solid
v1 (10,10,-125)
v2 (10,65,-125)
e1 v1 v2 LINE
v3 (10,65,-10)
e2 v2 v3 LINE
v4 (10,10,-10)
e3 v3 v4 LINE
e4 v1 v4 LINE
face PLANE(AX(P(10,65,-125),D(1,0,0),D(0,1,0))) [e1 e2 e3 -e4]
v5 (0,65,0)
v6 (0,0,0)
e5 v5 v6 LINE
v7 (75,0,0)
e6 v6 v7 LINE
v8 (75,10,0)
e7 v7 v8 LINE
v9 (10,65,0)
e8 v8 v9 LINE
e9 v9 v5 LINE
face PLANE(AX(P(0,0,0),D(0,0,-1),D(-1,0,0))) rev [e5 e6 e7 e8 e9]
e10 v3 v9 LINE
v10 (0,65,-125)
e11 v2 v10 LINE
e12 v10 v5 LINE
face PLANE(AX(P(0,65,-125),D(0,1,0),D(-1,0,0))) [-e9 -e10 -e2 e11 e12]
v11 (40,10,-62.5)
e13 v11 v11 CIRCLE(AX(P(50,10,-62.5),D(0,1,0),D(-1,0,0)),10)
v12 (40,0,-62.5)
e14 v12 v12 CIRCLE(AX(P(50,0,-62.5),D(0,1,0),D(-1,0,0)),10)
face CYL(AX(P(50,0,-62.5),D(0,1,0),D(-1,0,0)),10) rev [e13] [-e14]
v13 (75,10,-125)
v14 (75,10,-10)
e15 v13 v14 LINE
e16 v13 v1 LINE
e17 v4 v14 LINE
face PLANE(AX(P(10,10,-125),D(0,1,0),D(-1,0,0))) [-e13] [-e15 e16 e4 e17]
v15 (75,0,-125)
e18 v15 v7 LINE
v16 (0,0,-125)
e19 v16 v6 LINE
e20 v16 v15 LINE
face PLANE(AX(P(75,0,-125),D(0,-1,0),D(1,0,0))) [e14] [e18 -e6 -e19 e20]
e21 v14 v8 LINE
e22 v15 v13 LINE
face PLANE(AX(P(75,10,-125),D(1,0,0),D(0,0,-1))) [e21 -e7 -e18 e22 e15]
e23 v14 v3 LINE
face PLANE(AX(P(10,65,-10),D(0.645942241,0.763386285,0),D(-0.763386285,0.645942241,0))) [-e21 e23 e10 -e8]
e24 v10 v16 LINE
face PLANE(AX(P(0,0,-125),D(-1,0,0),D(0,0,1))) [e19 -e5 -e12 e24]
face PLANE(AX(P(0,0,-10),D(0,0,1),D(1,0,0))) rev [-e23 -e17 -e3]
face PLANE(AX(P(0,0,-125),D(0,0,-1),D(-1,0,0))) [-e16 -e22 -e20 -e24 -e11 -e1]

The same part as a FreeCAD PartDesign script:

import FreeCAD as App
import Part
import Sketcher
from FreeCAD import Vector

doc = App.newDocument("Part")
body = doc.addObject("PartDesign::Body", "Body")

sketch1 = body.newObject("Sketcher::SketchObject", "Sketch")
sketch1.AttachmentSupport = (doc.getObject("XY_Plane"), [""])
sketch1.MapMode = "FlatFace"
sketch1.addGeometry([
    Part.LineSegment(Vector(0, 65, 0), Vector(0, 0, 0)),
    Part.LineSegment(Vector(0, 0, 0), Vector(75, 0, 0)),
    Part.LineSegment(Vector(75, 0, 0), Vector(75, 10, 0)),
    Part.LineSegment(Vector(75, 10, 0), Vector(10, 10, 0)),
    Part.LineSegment(Vector(10, 10, 0), Vector(10, 65, 0)),
    Part.LineSegment(Vector(10, 65, 0), Vector(0, 65, 0)),
], False)
sketch1.addConstraint([
    Sketcher.Constraint("Coincident", 0, 2, 1, 1),
    Sketcher.Constraint("Coincident", 1, 2, 2, 1),
    Sketcher.Constraint("Coincident", 2, 2, 3, 1),
    Sketcher.Constraint("Coincident", 3, 2, 4, 1),
    Sketcher.Constraint("Coincident", 4, 2, 5, 1),
    Sketcher.Constraint("Coincident", 5, 2, 0, 1),
    Sketcher.Constraint("Vertical", 0),
    Sketcher.Constraint("Horizontal", 1),
    Sketcher.Constraint("Vertical", 2),
    Sketcher.Constraint("Horizontal", 3),
    Sketcher.Constraint("Vertical", 4),
    Sketcher.Constraint("Horizontal", 5),
    Sketcher.Constraint("Coincident", 0, 2, -1, 1),
    Sketcher.Constraint("Equal", 3, 0),
    Sketcher.Constraint("Equal", 5, 2),
    Sketcher.Constraint("DistanceX", 1, 1, 1, 2, 75.0),
    Sketcher.Constraint("DistanceX", 3, 2, 3, 1, 65.0),
])
pad1 = body.newObject("PartDesign::Pad", "Pad")
pad1.Profile = sketch1
pad1.Length = 125
pad1.Reversed = True

sketch2 = body.newObject("Sketcher::SketchObject", "Sketch001")
sketch2.AttachmentSupport = (doc.getObject("XY_Plane"), [""])
sketch2.MapMode = "FlatFace"
sketch2.addGeometry([
    Part.LineSegment(Vector(75, 10, 0), Vector(10, 65, 0)),
    Part.LineSegment(Vector(10, 65, 0), Vector(10, 10, 0)),
    Part.LineSegment(Vector(10, 10, 0), Vector(75, 10, 0)),
], False)
sketch2.addConstraint([
    Sketcher.Constraint("Coincident", 0, 2, 1, 1),
    Sketcher.Constraint("Coincident", 1, 2, 2, 1),
    Sketcher.Constraint("Coincident", 2, 2, 0, 1),
    Sketcher.Constraint("Vertical", 1),
    Sketcher.Constraint("Horizontal", 2),
    Sketcher.Constraint("DistanceX", 2, 1, 2, 2, 65.0),
    Sketcher.Constraint("DistanceY", 1, 2, 1, 1, 55.0),
    Sketcher.Constraint("DistanceX", -1, 1, 0, 2, 10.0),
    Sketcher.Constraint("DistanceY", -1, 1, 0, 2, 65.0),
])
pad2 = body.newObject("PartDesign::Pad", "Pad001")
pad2.Profile = sketch2
pad2.Length = 10
pad2.Reversed = True

sketch3 = body.newObject("Sketcher::SketchObject", "Sketch002")
sketch3.AttachmentSupport = (doc.getObject("XZ_Plane"), [""])
sketch3.MapMode = "FlatFace"
sketch3.AttachmentOffset = App.Placement(Vector(0, 0, -10), App.Rotation())
sketch3.addGeometry(Part.Circle(Vector(50, -62, 0), Vector(0, 0, 1), 10), False)
sketch3.addConstraint([
    Sketcher.Constraint("Diameter", 0, 20.0),
    Sketcher.Constraint("DistanceX", -1, 1, 0, 3, 50.0),
    Sketcher.Constraint("DistanceY", 0, 3, -1, 1, 62.5),
])
pocket1 = body.newObject("PartDesign::Pocket", "Pocket")
pocket1.Profile = sketch3
pocket1.Length = 10
pocket1.Reversed = True

doc.recompute()
